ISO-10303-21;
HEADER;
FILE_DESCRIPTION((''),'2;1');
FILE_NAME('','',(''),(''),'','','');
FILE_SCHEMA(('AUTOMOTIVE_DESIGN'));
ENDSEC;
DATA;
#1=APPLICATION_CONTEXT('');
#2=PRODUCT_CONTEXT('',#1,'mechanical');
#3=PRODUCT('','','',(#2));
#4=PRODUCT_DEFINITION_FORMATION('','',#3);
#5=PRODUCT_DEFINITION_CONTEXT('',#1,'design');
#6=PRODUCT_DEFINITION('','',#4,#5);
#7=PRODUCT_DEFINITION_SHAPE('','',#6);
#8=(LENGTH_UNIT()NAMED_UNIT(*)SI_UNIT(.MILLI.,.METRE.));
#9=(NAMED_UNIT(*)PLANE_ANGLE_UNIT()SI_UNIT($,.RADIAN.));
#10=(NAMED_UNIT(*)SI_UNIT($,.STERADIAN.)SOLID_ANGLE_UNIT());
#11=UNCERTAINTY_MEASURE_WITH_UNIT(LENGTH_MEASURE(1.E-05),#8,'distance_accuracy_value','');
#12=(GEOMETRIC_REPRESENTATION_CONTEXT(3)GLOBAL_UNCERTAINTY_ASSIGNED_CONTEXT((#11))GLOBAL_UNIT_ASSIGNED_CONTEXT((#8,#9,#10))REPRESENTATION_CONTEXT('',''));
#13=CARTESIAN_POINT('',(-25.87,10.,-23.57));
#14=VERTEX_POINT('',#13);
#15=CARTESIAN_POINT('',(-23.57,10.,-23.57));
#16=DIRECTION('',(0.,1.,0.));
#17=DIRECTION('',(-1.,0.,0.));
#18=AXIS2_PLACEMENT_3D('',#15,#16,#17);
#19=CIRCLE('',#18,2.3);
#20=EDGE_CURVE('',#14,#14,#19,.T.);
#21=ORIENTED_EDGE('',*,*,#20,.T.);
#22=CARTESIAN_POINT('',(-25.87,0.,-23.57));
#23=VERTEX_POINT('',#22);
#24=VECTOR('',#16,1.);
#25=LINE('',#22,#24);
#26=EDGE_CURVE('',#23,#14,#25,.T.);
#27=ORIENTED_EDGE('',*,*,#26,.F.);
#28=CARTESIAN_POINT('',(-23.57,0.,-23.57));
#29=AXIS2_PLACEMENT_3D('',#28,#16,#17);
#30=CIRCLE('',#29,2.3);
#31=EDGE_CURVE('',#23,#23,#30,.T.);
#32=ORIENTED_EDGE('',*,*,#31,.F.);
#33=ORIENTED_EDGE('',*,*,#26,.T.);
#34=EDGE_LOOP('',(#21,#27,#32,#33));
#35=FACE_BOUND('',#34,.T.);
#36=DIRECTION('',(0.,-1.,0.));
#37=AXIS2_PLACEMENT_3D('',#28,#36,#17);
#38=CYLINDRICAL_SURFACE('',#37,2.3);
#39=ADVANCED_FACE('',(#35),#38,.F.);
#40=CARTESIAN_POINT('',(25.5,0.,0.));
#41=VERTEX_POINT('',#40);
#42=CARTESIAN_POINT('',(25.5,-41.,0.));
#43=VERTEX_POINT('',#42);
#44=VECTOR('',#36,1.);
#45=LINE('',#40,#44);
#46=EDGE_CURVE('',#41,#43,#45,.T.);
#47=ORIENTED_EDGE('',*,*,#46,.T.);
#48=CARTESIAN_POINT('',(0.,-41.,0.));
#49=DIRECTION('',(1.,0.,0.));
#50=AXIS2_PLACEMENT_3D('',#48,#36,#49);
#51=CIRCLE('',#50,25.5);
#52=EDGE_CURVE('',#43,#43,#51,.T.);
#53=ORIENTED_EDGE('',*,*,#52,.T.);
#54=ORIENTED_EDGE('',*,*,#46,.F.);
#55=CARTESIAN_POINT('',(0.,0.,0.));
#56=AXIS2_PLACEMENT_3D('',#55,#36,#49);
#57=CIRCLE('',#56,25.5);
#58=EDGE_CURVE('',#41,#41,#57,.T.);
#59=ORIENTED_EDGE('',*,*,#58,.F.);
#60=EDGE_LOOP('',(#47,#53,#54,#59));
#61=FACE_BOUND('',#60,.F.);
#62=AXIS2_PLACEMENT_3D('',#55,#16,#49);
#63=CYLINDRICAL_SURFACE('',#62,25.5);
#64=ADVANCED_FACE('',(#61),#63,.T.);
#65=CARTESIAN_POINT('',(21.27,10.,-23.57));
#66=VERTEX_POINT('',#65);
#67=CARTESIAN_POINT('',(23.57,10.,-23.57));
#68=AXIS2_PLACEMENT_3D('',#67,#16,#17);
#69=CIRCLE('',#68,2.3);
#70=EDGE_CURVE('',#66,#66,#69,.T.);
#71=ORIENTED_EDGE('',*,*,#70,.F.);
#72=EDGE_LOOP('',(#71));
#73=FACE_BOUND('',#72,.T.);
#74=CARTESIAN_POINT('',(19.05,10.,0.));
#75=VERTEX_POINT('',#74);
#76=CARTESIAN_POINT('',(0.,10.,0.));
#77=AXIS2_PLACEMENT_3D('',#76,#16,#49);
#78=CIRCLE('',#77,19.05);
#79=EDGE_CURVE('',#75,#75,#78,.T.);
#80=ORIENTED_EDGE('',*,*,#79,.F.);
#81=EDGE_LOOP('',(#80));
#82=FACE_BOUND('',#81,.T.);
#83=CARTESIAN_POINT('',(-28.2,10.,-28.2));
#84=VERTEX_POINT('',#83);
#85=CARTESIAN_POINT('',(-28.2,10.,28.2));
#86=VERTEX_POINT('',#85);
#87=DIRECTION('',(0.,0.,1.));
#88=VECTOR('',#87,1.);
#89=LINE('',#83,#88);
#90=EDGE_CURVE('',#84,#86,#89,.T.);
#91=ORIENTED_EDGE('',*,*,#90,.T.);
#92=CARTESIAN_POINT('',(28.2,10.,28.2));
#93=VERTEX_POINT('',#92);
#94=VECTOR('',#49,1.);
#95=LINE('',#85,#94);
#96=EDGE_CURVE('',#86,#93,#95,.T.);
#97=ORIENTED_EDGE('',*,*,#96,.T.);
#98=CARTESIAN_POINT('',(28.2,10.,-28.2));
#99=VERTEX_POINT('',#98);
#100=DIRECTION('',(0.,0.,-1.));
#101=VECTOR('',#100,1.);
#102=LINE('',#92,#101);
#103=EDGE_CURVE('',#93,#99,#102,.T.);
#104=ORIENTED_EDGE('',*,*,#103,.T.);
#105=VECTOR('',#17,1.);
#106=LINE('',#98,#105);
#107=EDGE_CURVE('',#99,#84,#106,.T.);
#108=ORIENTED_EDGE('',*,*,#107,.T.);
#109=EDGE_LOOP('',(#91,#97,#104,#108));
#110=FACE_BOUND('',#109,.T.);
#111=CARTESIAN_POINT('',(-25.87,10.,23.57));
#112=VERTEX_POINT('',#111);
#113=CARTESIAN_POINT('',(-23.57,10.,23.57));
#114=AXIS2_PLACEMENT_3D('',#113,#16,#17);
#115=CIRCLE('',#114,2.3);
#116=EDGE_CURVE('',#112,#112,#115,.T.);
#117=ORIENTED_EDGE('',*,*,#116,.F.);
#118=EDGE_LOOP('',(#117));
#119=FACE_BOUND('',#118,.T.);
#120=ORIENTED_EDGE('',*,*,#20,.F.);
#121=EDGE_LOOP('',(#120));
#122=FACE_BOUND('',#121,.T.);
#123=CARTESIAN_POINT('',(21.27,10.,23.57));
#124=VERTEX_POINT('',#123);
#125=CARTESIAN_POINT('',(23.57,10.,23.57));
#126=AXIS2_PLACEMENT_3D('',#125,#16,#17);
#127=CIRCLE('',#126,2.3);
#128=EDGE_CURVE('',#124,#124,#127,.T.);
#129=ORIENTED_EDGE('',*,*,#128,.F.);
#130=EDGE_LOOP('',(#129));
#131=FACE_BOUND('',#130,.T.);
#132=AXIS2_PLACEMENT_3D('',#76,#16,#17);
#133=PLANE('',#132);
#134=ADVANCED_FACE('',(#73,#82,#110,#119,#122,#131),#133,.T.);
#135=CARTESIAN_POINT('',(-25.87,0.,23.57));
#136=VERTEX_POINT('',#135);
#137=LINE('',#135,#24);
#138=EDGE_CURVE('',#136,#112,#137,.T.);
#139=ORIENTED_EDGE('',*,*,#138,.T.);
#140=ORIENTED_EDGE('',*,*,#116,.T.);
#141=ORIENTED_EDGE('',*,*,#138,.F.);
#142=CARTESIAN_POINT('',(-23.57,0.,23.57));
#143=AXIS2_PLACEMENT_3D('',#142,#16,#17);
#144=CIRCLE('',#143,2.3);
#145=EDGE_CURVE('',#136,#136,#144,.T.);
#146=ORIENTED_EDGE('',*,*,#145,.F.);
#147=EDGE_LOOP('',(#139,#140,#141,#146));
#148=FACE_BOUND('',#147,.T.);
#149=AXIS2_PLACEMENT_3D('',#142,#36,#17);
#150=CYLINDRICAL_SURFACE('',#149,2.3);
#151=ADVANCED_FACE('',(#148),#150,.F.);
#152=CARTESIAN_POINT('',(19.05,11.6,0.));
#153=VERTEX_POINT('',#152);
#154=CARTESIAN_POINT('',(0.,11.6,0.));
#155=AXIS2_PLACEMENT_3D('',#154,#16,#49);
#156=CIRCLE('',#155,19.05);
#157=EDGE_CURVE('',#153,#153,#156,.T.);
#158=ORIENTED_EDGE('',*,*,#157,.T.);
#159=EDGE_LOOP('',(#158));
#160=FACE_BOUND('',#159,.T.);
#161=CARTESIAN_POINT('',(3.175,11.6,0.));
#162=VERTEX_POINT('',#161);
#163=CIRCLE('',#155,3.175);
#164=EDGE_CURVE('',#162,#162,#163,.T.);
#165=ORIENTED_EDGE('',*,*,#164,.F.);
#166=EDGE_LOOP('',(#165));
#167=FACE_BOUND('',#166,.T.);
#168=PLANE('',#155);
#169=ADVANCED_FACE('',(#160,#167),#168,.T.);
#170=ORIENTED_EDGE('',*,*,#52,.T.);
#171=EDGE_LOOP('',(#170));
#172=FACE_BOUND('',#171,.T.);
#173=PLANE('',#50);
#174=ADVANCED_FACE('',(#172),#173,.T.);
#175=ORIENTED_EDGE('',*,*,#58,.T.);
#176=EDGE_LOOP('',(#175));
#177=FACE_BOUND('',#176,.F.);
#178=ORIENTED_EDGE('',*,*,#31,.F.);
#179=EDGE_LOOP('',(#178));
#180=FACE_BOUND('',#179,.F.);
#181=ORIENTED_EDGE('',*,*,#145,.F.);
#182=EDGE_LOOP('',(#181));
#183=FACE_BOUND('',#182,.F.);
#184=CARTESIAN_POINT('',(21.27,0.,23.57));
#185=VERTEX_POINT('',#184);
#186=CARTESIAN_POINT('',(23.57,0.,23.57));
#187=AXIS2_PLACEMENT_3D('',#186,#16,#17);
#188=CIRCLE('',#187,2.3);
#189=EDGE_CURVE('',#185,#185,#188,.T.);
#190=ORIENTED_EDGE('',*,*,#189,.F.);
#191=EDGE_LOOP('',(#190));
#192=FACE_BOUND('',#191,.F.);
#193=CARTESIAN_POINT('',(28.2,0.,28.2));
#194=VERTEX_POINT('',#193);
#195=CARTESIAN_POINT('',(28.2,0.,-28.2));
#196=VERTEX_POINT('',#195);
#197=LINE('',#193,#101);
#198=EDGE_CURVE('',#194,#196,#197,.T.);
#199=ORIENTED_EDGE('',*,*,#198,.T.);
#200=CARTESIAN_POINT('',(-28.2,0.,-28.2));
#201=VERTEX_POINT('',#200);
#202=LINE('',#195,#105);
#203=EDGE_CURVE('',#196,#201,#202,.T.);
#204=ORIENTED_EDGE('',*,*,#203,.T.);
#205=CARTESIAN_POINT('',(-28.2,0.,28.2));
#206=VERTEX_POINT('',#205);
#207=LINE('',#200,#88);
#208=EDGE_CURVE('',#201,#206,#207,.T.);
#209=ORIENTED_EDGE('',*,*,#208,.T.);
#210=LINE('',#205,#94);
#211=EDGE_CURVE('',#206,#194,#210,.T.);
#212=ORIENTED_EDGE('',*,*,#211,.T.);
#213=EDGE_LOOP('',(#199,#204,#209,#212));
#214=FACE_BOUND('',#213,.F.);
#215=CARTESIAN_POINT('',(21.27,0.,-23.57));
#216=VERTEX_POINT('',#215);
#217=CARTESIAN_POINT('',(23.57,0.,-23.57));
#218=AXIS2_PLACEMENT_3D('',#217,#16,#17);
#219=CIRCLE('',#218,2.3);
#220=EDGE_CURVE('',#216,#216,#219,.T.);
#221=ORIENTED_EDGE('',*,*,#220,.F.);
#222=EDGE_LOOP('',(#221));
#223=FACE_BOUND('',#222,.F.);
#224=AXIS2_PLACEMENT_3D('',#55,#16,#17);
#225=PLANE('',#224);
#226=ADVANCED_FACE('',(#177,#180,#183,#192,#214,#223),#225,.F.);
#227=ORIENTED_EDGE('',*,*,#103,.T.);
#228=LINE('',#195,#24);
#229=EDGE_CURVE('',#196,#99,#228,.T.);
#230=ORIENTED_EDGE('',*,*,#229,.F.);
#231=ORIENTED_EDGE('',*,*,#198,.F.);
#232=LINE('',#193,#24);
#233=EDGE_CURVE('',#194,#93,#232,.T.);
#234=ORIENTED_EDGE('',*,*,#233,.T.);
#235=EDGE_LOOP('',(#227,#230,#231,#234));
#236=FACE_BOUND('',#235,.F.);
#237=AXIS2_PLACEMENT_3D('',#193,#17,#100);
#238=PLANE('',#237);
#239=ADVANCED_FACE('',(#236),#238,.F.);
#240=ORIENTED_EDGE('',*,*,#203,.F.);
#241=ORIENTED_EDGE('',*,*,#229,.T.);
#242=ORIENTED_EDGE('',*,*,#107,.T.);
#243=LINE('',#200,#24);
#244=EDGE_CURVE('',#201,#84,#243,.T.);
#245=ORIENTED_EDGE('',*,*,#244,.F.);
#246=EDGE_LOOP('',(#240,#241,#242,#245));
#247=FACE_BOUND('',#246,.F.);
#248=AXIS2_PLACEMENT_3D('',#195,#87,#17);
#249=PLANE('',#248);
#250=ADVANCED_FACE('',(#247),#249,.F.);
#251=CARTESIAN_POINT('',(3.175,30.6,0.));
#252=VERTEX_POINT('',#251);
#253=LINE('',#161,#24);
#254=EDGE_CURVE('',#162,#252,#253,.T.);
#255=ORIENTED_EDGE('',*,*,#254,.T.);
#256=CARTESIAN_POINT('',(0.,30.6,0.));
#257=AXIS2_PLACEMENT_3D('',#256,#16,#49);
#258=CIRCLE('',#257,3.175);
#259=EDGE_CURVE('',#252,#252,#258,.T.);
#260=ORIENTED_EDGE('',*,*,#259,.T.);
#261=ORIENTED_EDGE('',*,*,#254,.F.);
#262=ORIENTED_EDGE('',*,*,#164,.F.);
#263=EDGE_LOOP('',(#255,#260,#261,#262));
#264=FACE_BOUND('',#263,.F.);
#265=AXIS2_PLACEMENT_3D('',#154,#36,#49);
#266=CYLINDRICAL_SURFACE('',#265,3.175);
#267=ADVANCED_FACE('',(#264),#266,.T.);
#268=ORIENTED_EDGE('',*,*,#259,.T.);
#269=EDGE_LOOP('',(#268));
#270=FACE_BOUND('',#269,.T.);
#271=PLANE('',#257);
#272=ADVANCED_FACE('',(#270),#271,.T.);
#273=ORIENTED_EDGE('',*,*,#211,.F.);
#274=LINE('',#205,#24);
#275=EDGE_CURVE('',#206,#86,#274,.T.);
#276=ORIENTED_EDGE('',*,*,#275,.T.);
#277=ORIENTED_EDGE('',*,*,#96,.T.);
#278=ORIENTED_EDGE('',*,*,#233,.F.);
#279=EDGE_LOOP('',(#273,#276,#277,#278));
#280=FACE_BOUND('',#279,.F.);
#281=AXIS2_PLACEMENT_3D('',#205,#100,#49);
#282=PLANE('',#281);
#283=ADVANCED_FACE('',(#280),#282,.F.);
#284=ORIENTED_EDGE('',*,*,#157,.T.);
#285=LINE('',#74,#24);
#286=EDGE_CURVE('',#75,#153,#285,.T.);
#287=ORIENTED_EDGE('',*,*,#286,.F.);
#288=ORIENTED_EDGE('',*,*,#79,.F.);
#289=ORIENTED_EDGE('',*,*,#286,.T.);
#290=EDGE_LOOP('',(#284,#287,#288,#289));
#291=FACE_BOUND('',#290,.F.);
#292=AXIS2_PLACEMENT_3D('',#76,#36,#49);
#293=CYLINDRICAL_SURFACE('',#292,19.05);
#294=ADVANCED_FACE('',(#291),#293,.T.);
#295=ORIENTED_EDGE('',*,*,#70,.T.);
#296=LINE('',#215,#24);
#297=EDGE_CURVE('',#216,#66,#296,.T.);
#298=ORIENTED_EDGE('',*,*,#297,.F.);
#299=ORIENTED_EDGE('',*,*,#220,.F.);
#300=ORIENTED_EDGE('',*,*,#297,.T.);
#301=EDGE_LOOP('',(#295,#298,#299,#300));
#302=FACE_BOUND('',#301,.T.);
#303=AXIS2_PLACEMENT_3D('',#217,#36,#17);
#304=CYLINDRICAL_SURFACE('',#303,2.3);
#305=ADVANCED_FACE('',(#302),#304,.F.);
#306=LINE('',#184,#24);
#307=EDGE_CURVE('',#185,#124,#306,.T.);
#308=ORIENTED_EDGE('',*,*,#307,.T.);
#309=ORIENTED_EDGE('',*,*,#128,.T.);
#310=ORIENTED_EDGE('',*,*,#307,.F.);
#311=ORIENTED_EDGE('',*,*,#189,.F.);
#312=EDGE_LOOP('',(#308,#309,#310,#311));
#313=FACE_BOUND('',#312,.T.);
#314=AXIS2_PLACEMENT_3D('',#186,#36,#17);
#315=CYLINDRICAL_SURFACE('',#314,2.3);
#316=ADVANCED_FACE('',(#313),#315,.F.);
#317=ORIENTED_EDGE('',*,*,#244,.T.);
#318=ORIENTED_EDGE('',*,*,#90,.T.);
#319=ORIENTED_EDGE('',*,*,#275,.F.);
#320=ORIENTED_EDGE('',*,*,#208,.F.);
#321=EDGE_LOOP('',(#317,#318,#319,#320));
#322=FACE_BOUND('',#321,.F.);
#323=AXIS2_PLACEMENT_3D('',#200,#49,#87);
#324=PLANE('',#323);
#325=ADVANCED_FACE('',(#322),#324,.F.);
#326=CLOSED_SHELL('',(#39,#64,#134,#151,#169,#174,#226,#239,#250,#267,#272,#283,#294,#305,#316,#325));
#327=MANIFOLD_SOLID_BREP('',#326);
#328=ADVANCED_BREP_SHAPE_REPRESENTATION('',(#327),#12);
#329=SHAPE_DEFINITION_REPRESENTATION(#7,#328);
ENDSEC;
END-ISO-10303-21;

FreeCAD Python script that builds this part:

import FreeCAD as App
import Part
import Sketcher
Q = App.Units.Quantity

doc = App.newDocument("Part")
body = doc.addObject("PartDesign::Body", "Body")

# Sketch on XZ plane
sketch1 = body.newObject("Sketcher::SketchObject", "Sketch")
sketch1.AttachmentSupport = (doc.getObject("XZ_Plane"), [""])
sketch1.MapMode = "FlatFace"
sketch1.addGeometry(Part.LineSegment(App.Vector(-28.2, -28.2, 0), App.Vector(-28.2, 28.2, 0)), False)
sketch1.addGeometry(Part.LineSegment(App.Vector(-28.2, 28.2, 0), App.Vector(28.2, 28.2, 0)), False)
sketch1.addGeometry(Part.LineSegment(App.Vector(28.2, 28.2, 0), App.Vector(28.2, -28.2, 0)), False)
sketch1.addGeometry(Part.LineSegment(App.Vector(28.2, -28.2, 0), App.Vector(-28.2, -28.2, 0)), False)
sketch1.addGeometry(Part.Circle(App.Vector(23.6, -23.6, 0), App.Vector(0, 0, 1), 2.3), False)
sketch1.addGeometry(Part.Circle(App.Vector(-23.6, -23.6, 0), App.Vector(0, 0, 1), 2.3), False)
sketch1.addGeometry(Part.Circle(App.Vector(23.6, 23.6, 0), App.Vector(0, 0, 1), 2.3), False)
sketch1.addGeometry(Part.Circle(App.Vector(-23.6, 23.6, 0), App.Vector(0, 0, 1), 2.3), False)
sketch1.addConstraint(Sketcher.Constraint("Coincident", 0, 2, 1, 1))
sketch1.addConstraint(Sketcher.Constraint("Coincident", 1, 2, 2, 1))
sketch1.addConstraint(Sketcher.Constraint("Coincident", 2, 2, 3, 1))
sketch1.addConstraint(Sketcher.Constraint("Coincident", 3, 2, 0, 1))
sketch1.addConstraint(Sketcher.Constraint("Vertical", 0))
sketch1.addConstraint(Sketcher.Constraint("Horizontal", 1))
sketch1.addConstraint(Sketcher.Constraint("Vertical", 2))
sketch1.addConstraint(Sketcher.Constraint("Horizontal", 3))
sketch1.addConstraint(Sketcher.Constraint("Equal", 4, 5))
sketch1.addConstraint(Sketcher.Constraint("Equal", 5, 6))
sketch1.addConstraint(Sketcher.Constraint("Equal", 6, 7))
sketch1.addConstraint(Sketcher.Constraint("Symmetric", 5, 3, 6, 3, -1, 1))
sketch1.addConstraint(Sketcher.Constraint("Symmetric", 4, 3, 7, 3, -1, 1))
sketch1.addConstraint(Sketcher.Constraint("Symmetric", 0, 2, 2, 2, -1, 1))
sketch1.addConstraint(Sketcher.Constraint("Symmetric", 4, 3, 5, 3, -2))
sketch1.addConstraint(Sketcher.Constraint("Equal", 3, 0))
sketch1.addConstraint(Sketcher.Constraint("Diameter", 4, Q("4.6 mm")))
sketch1.addConstraint(Sketcher.Constraint("DistanceX", 1, 1, 1, 2, Q("56.4 mm")))
sketch1.addConstraint(Sketcher.Constraint("DistanceX", 5, 3, 4, 3, Q("47.14 mm")))
sketch1.addConstraint(Sketcher.Constraint("DistanceY", 4, 3, 6, 3, Q("47.14 mm")))
pad1 = body.newObject("PartDesign::Pad", "Pad")
pad1.Profile = sketch1
pad1.Length = 10
pad1.Reversed = True

# Sketch on XZ plane
sketch2 = body.newObject("Sketcher::SketchObject", "Sketch001")
sketch2.AttachmentSupport = (doc.getObject("XZ_Plane"), [""])
sketch2.MapMode = "FlatFace"
sketch2.addGeometry(Part.Circle(App.Vector(0, 0, 0), App.Vector(0, 0, 1), 26), False)
sketch2.addConstraint(Sketcher.Constraint("Coincident", 0, 3, -1, 1))
sketch2.addConstraint(Sketcher.Constraint("Diameter", 0, Q("51 mm")))
pad2 = body.newObject("PartDesign::Pad", "Pad001")
pad2.Profile = sketch2
pad2.Length = 41

# Sketch on XZ plane
sketch3 = body.newObject("Sketcher::SketchObject", "Sketch002")
sketch3.AttachmentSupport = (doc.getObject("XZ_Plane"), [""])
sketch3.MapMode = "FlatFace"
sketch3.AttachmentOffset = App.Placement(App.Vector(0, 0, -10), App.Rotation())
sketch3.addGeometry(Part.Circle(App.Vector(0, 0, 0), App.Vector(0, 0, 1), 19), False)
sketch3.addConstraint(Sketcher.Constraint("Coincident", 0, 3, -1, 1))
sketch3.addConstraint(Sketcher.Constraint("Diameter", 0, Q("38.1 mm")))
pad3 = body.newObject("PartDesign::Pad", "Pad002")
pad3.Profile = sketch3
pad3.Length = 1.6
pad3.Reversed = True

# Sketch on XZ plane
sketch4 = body.newObject("Sketcher::SketchObject", "Sketch003")
sketch4.AttachmentSupport = (doc.getObject("XZ_Plane"), [""])
sketch4.MapMode = "FlatFace"
sketch4.AttachmentOffset = App.Placement(App.Vector(0, 0, -11.6), App.Rotation())
sketch4.addGeometry(Part.Circle(App.Vector(0, 0, 0), App.Vector(0, 0, 1), 3.2), False)
sketch4.addConstraint(Sketcher.Constraint("Coincident", 0, 3, -1, 1))
sketch4.addConstraint(Sketcher.Constraint("Diameter", 0, Q("6.35 mm")))
pad4 = body.newObject("PartDesign::Pad", "Pad003")
pad4.Profile = sketch4
pad4.Length = 19
pad4.Reversed = True

doc.recompute()
